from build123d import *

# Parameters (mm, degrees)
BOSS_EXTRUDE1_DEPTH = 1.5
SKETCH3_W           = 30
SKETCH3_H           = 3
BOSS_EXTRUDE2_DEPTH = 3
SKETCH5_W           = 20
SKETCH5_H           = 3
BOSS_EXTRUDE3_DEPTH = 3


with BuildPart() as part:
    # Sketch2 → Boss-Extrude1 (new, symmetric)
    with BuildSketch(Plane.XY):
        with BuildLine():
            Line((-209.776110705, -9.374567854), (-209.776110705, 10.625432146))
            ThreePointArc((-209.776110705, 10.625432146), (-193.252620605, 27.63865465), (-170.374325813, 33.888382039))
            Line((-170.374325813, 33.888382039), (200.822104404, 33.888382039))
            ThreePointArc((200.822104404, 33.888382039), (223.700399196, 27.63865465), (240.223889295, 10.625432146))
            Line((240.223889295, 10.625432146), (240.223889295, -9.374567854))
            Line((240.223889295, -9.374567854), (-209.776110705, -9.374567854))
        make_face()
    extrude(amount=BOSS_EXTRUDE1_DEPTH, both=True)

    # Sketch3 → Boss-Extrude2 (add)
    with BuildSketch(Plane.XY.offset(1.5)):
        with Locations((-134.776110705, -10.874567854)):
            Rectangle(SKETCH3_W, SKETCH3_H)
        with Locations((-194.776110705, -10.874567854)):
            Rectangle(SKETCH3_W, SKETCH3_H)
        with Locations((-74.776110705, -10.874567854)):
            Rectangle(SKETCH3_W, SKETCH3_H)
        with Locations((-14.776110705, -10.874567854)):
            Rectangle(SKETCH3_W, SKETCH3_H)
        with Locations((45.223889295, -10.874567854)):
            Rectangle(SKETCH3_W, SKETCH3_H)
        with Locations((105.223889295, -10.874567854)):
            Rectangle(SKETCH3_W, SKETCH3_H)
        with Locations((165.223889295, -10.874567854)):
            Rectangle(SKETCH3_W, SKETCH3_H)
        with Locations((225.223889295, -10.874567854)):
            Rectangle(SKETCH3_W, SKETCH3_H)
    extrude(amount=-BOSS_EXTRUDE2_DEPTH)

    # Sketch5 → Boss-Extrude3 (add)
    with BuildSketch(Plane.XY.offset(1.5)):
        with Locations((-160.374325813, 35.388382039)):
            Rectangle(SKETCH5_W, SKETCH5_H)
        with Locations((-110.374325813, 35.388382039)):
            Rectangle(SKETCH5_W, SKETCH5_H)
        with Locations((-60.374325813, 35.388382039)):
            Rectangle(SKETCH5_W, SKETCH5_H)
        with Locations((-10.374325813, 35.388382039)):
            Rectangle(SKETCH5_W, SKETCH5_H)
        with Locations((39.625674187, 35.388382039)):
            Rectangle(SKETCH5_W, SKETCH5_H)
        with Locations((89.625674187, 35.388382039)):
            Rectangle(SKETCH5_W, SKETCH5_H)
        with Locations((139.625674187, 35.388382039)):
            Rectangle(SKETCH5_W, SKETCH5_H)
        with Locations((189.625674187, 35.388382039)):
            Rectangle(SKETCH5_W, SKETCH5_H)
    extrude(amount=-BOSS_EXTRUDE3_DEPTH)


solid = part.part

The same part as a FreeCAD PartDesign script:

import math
import FreeCAD as App
import Part
import Sketcher

V = App.Vector
Q = App.Units.Quantity


def add_polygon(sketch, points):
    """Adds a closed chain of lines whose ends are joined by coincident constraints."""
    first, n = sketch.GeometryCount, len(points)
    for a, b in zip(points, points[1:] + points[:1]):
        sketch.addGeometry(Part.LineSegment(App.Vector(*a, 0), App.Vector(*b, 0)), False)
    for i in range(n):
        sketch.addConstraint(Sketcher.Constraint("Coincident", first + i, 2, first + (i + 1) % n, 1))

doc = App.newDocument("Part")
body = doc.addObject("PartDesign::Body", "Body")

sketch1 = body.newObject("Sketcher::SketchObject", "Sketch")
sketch1.AttachmentSupport = (doc.getObject("XY_Plane"), [""])
sketch1.MapMode = "FlatFace"
sketch1.addGeometry([
    Part.LineSegment(V(-210, 11, 0), V(-210, -9, 0)),
    Part.LineSegment(V(-210, -9, 0), V(240, -9, 0)),
    Part.LineSegment(V(240, -9, 0), V(240, 11, 0)),
    Part.ArcOfCircle(Part.Circle(V(201, -11, 0), V(0, 0, 1), 45), math.radians(29), math.radians(90)),
    Part.LineSegment(V(201, 34, 0), V(-170, 34, 0)),
    Part.ArcOfCircle(Part.Circle(V(-170, -11, 0), V(0, 0, 1), 45), math.radians(90), math.radians(151)),
], False)
sketch1.addConstraint([
    Sketcher.Constraint("Coincident", 0, 2, 1, 1),
    Sketcher.Constraint("Coincident", 1, 2, 2, 1),
    Sketcher.Constraint("Coincident", 2, 2, 3, 1),
    Sketcher.Constraint("Tangent", 3, 2, 4, 1),
    Sketcher.Constraint("Tangent", 4, 2, 5, 1),
    Sketcher.Constraint("Coincident", 5, 2, 0, 1),
    Sketcher.Constraint("Vertical", 0),
    Sketcher.Constraint("Horizontal", 1),
    Sketcher.Constraint("Vertical", 2),
    Sketcher.Constraint("Horizontal", 4),
    Sketcher.Constraint("Equal", 3, 5),
    Sketcher.Constraint("Horizontal", 2, 2, 5, 2),
    Sketcher.Constraint("Radius", 3, Q("45 mm")),
    Sketcher.Constraint("DistanceX", 1, 1, 1, 2, Q("450 mm")),
    Sketcher.Constraint("DistanceY", 0, 2, 0, 1, Q("20 mm")),
    Sketcher.Constraint("DistanceX", 4, 2, 4, 1, Q("371.19643 mm")),
    Sketcher.Constraint("DistanceX", 0, 2, -1, 1, Q("209.776111 mm")),
    Sketcher.Constraint("DistanceY", 3, 3, -1, 1, Q("11.111618 mm")),
])
pad1 = body.newObject("PartDesign::Pad", "Pad")
pad1.Profile = sketch1
pad1.Length = 3
pad1.Midplane = True

sketch2 = body.newObject("Sketcher::SketchObject", "Sketch001")
sketch2.AttachmentSupport = (doc.getObject("XY_Plane"), [""])
sketch2.MapMode = "FlatFace"
sketch2.AttachmentOffset = App.Placement(V(0, 0, 1.5), App.Rotation())
add_polygon(sketch2, [(-149.8, -9.4), (-149.8, -12.4), (-119.8, -12.4), (-119.8, -9.4)])
add_polygon(sketch2, [(-209.8, -9.4), (-209.8, -12.4), (-179.8, -12.4), (-179.8, -9.4)])
add_polygon(sketch2, [(-89.8, -9.4), (-89.8, -12.4), (-59.8, -12.4), (-59.8, -9.4)])
add_polygon(sketch2, [(-29.8, -9.4), (-29.8, -12.4), (0.2, -12.4), (0.2, -9.4)])
add_polygon(sketch2, [(30.2, -9.4), (30.2, -12.4), (60.2, -12.4), (60.2, -9.4)])
add_polygon(sketch2, [(90.2, -9.4), (90.2, -12.4), (120.2, -12.4), (120.2, -9.4)])
add_polygon(sketch2, [(150.2, -9.4), (150.2, -12.4), (180.2, -12.4), (180.2, -9.4)])
add_polygon(sketch2, [(210.2, -9.4), (210.2, -12.4), (240.2, -12.4), (240.2, -9.4)])
sketch2.addConstraint([
    Sketcher.Constraint("Vertical", 0),
    Sketcher.Constraint("Horizontal", 1),
    Sketcher.Constraint("Vertical", 2),
    Sketcher.Constraint("Horizontal", 3),
    Sketcher.Constraint("Vertical", 4),
    Sketcher.Constraint("Horizontal", 5),
    Sketcher.Constraint("Vertical", 6),
    Sketcher.Constraint("Horizontal", 7),
    Sketcher.Constraint("Vertical", 8),
    Sketcher.Constraint("Horizontal", 9),
    Sketcher.Constraint("Vertical", 10),
    Sketcher.Constraint("Horizontal", 11),
    Sketcher.Constraint("Vertical", 12),
    Sketcher.Constraint("Horizontal", 13),
    Sketcher.Constraint("Vertical", 14),
    Sketcher.Constraint("Horizontal", 15),
    Sketcher.Constraint("Vertical", 16),
    Sketcher.Constraint("Horizontal", 17),
    Sketcher.Constraint("Vertical", 18),
    Sketcher.Constraint("Horizontal", 19),
    Sketcher.Constraint("Vertical", 20),
    Sketcher.Constraint("Horizontal", 21),
    Sketcher.Constraint("Vertical", 22),
    Sketcher.Constraint("Horizontal", 23),
    Sketcher.Constraint("Vertical", 24),
    Sketcher.Constraint("Horizontal", 25),
    Sketcher.Constraint("Vertical", 26),
    Sketcher.Constraint("Horizontal", 27),
    Sketcher.Constraint("Vertical", 28),
    Sketcher.Constraint("Horizontal", 29),
    Sketcher.Constraint("Vertical", 30),
    Sketcher.Constraint("Horizontal", 31),
    Sketcher.Constraint("Horizontal", 1, 2, 4, 2),
    Sketcher.Constraint("Horizontal", 3, 2, 6, 2),
    Sketcher.Constraint("Horizontal", 5, 2, 8, 2),
    Sketcher.Constraint("Horizontal", 7, 2, 10, 2),
    Sketcher.Constraint("Horizontal", 9, 2, 12, 2),
    Sketcher.Constraint("Horizontal", 11, 2, 14, 2),
    Sketcher.Constraint("Horizontal", 13, 2, 16, 2),
    Sketcher.Constraint("Horizontal", 15, 2, 18, 2),
    Sketcher.Constraint("Horizontal", 17, 2, 20, 2),
    Sketcher.Constraint("Horizontal", 19, 2, 22, 2),
    Sketcher.Constraint("Horizontal", 21, 2, 24, 2),
    Sketcher.Constraint("Horizontal", 23, 2, 26, 2),
    Sketcher.Constraint("Horizontal", 25, 2, 28, 2),
    Sketcher.Constraint("Horizontal", 27, 2, 30, 2),
    Sketcher.Constraint("Equal", 3, 5),
    Sketcher.Constraint("Equal", 7, 9),
    Sketcher.Constraint("Equal", 11, 13),
    Sketcher.Constraint("Equal", 15, 17),
    Sketcher.Constraint("Equal", 19, 21),
    Sketcher.Constraint("Equal", 23, 25),
    Sketcher.Constraint("Equal", 27, 29),
    Sketcher.Constraint("DistanceX", 1, 1, 1, 2, Q("30 mm")),
    Sketcher.Constraint("DistanceY", 0, 2, 0, 1, Q("3 mm")),
    Sketcher.Constraint("DistanceX", 4, 2, 0, 2, Q("60 mm")),
    Sketcher.Constraint("DistanceX", 1, 2, 8, 2, Q("30 mm")),
    Sketcher.Constraint("DistanceX", 9, 2, 12, 2, Q("30 mm")),
    Sketcher.Constraint("DistanceX", 13, 2, 16, 2, Q("30 mm")),
    Sketcher.Constraint("DistanceX", 17, 2, 20, 2, Q("30 mm")),
    Sketcher.Constraint("DistanceX", 21, 2, 24, 2, Q("30 mm")),
    Sketcher.Constraint("DistanceX", 25, 2, 28, 2, Q("30 mm")),
    Sketcher.Constraint("DistanceX", 0, 2, -1, 1, Q("149.776111 mm")),
    Sketcher.Constraint("DistanceY", 0, 2, -1, 1, Q("12.374568 mm")),
])
pad2 = body.newObject("PartDesign::Pad", "Pad001")
pad2.Profile = sketch2
pad2.Length = 3
pad2.Reversed = True

sketch3 = body.newObject("Sketcher::SketchObject", "Sketch002")
sketch3.AttachmentSupport = (doc.getObject("XY_Plane"), [""])
sketch3.MapMode = "FlatFace"
sketch3.AttachmentOffset = App.Placement(V(0, 0, 1.5), App.Rotation())
add_polygon(sketch3, [(-170.4, 36.9), (-170.4, 33.9), (-150.4, 33.9), (-150.4, 36.9)])
add_polygon(sketch3, [(-120.4, 36.9), (-120.4, 33.9), (-100.4, 33.9), (-100.4, 36.9)])
add_polygon(sketch3, [(-70.4, 36.9), (-70.4, 33.9), (-50.4, 33.9), (-50.4, 36.9)])
add_polygon(sketch3, [(-20.4, 36.9), (-20.4, 33.9), (-0.4, 33.9), (-0.4, 36.9)])
add_polygon(sketch3, [(29.6, 36.9), (29.6, 33.9), (49.6, 33.9), (49.6, 36.9)])
add_polygon(sketch3, [(79.6, 36.9), (79.6, 33.9), (99.6, 33.9), (99.6, 36.9)])
add_polygon(sketch3, [(129.6, 36.9), (129.6, 33.9), (149.6, 33.9), (149.6, 36.9)])
add_polygon(sketch3, [(179.6, 36.9), (179.6, 33.9), (199.6, 33.9), (199.6, 36.9)])
sketch3.addConstraint([
    Sketcher.Constraint("Vertical", 0),
    Sketcher.Constraint("Horizontal", 1),
    Sketcher.Constraint("Vertical", 2),
    Sketcher.Constraint("Horizontal", 3),
    Sketcher.Constraint("Vertical", 4),
    Sketcher.Constraint("Horizontal", 5),
    Sketcher.Constraint("Vertical", 6),
    Sketcher.Constraint("Horizontal", 7),
    Sketcher.Constraint("Vertical", 8),
    Sketcher.Constraint("Horizontal", 9),
    Sketcher.Constraint("Vertical", 10),
    Sketcher.Constraint("Horizontal", 11),
    Sketcher.Constraint("Vertical", 12),
    Sketcher.Constraint("Horizontal", 13),
    Sketcher.Constraint("Vertical", 14),
    Sketcher.Constraint("Horizontal", 15),
    Sketcher.Constraint("Vertical", 16),
    Sketcher.Constraint("Horizontal", 17),
    Sketcher.Constraint("Vertical", 18),
    Sketcher.Constraint("Horizontal", 19),
    Sketcher.Constraint("Vertical", 20),
    Sketcher.Constraint("Horizontal", 21),
    Sketcher.Constraint("Vertical", 22),
    Sketcher.Constraint("Horizontal", 23),
    Sketcher.Constraint("Vertical", 24),
    Sketcher.Constraint("Horizontal", 25),
    Sketcher.Constraint("Vertical", 26),
    Sketcher.Constraint("Horizontal", 27),
    Sketcher.Constraint("Vertical", 28),
    Sketcher.Constraint("Horizontal", 29),
    Sketcher.Constraint("Vertical", 30),
    Sketcher.Constraint("Horizontal", 31),
    Sketcher.Constraint("Horizontal", 1, 2, 4, 2),
    Sketcher.Constraint("Horizontal", 3, 2, 6, 2),
    Sketcher.Constraint("Horizontal", 5, 2, 8, 2),
    Sketcher.Constraint("Horizontal", 7, 2, 10, 2),
    Sketcher.Constraint("Horizontal", 9, 2, 12, 2),
    Sketcher.Constraint("Horizontal", 11, 2, 14, 2),
    Sketcher.Constraint("Horizontal", 13, 2, 16, 2),
    Sketcher.Constraint("Horizontal", 15, 2, 18, 2),
    Sketcher.Constraint("Horizontal", 17, 2, 20, 2),
    Sketcher.Constraint("Horizontal", 19, 2, 22, 2),
    Sketcher.Constraint("Horizontal", 21, 2, 24, 2),
    Sketcher.Constraint("Horizontal", 23, 2, 26, 2),
    Sketcher.Constraint("Horizontal", 25, 2, 28, 2),
    Sketcher.Constraint("Horizontal", 27, 2, 30, 2),
    Sketcher.Constraint("Equal", 3, 5),
    Sketcher.Constraint("Equal", 7, 9),
    Sketcher.Constraint("Equal", 11, 13),
    Sketcher.Constraint("Equal", 15, 17),
    Sketcher.Constraint("Equal", 19, 21),
    Sketcher.Constraint("Equal", 23, 25),
    Sketcher.Constraint("Equal", 27, 29),
    Sketcher.Constraint("DistanceX", 1, 1, 1, 2, Q("20 mm")),
    Sketcher.Constraint("DistanceY", 0, 2, 0, 1, Q("3 mm")),
    Sketcher.Constraint("DistanceX", 1, 2, 4, 2, Q("30 mm")),
    Sketcher.Constraint("DistanceX", 5, 2, 8, 2, Q("30 mm")),
    Sketcher.Constraint("DistanceX", 9, 2, 12, 2, Q("30 mm")),
    Sketcher.Constraint("DistanceX", 13, 2, 16, 2, Q("30 mm")),
    Sketcher.Constraint("DistanceX", 17, 2, 20, 2, Q("30 mm")),
    Sketcher.Constraint("DistanceX", 21, 2, 24, 2, Q("30 mm")),
    Sketcher.Constraint("DistanceX", 25, 2, 28, 2, Q("30 mm")),
    Sketcher.Constraint("DistanceX", 0, 2, -1, 1, Q("170.374326 mm")),
    Sketcher.Constraint("DistanceY", -1, 1, 0, 2, Q("33.888382 mm")),
])
pad3 = body.newObject("PartDesign::Pad", "Pad002")
pad3.Profile = sketch3
pad3.Length = 3
pad3.Reversed = True

doc.recompute()
